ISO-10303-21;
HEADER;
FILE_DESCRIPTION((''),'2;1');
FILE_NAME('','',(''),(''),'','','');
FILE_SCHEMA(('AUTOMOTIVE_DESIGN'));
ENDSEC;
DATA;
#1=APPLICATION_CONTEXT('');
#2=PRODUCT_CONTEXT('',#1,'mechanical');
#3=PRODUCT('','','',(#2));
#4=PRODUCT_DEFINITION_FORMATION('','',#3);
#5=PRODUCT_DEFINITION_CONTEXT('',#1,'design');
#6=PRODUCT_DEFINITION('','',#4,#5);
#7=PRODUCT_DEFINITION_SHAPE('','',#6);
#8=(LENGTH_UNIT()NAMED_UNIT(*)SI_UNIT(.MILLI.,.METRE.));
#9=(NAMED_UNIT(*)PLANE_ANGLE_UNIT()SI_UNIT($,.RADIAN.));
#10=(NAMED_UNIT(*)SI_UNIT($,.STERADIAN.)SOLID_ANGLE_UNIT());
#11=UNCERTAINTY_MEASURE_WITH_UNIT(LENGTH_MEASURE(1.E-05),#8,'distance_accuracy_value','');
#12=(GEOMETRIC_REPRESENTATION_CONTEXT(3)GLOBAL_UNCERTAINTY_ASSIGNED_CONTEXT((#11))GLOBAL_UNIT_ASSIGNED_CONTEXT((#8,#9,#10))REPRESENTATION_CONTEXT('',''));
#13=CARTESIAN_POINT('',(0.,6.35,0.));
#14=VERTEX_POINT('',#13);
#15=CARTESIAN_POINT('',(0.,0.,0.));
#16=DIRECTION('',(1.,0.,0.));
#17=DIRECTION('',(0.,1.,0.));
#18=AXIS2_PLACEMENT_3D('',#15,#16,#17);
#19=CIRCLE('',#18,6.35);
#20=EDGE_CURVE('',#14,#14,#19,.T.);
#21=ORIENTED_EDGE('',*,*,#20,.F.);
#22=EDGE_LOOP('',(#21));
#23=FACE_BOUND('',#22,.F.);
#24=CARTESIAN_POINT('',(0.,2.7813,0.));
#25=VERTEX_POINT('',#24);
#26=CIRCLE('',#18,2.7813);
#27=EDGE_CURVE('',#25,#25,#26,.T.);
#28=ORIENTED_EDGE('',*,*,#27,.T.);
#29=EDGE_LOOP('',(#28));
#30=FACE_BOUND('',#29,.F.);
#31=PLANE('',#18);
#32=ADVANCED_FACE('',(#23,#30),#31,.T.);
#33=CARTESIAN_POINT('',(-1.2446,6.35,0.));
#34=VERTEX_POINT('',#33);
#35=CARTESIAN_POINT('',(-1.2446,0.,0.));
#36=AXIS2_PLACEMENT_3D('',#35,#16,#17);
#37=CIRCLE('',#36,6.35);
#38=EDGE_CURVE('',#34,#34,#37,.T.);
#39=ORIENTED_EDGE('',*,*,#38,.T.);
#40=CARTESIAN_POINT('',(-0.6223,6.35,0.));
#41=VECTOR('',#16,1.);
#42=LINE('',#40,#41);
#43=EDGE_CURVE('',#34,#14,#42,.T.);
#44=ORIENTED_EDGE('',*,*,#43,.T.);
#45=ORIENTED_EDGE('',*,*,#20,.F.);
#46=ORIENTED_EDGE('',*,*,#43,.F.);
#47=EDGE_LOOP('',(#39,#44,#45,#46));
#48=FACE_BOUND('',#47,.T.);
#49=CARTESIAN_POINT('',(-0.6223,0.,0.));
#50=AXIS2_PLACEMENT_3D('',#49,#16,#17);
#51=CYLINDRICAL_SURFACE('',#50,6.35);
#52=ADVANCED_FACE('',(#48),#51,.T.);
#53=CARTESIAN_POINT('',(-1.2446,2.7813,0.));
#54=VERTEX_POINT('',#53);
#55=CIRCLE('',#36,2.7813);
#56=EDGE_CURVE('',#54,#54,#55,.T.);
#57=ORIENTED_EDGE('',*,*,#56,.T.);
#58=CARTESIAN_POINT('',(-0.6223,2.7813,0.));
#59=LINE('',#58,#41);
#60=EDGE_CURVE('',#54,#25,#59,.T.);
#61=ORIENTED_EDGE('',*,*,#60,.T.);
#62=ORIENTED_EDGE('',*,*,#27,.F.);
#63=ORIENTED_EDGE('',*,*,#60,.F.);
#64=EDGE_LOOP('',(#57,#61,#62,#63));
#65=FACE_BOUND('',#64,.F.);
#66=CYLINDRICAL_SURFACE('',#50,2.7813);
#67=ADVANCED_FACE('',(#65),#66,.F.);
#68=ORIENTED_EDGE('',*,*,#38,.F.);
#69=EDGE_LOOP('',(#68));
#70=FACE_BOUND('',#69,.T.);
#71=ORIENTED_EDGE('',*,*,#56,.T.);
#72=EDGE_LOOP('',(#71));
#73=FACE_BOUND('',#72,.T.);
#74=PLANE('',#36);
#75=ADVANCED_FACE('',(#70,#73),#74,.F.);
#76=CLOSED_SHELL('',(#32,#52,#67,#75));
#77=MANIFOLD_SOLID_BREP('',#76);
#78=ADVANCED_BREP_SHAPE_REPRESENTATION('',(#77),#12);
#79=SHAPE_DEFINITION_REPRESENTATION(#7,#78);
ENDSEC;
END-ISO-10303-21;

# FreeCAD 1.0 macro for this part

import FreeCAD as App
import Part
import Sketcher
from FreeCAD import Vector
Q = App.Units.Quantity

doc = App.newDocument("Part")
body = doc.addObject("PartDesign::Body", "Body")

sketch1 = body.newObject("Sketcher::SketchObject", "Sketch")
sketch1.AttachmentSupport = (doc.getObject("XY_Plane"), [""])
sketch1.MapMode = "FlatFace"
sketch1.addGeometry([
    Part.LineSegment(Vector(-1.2, 6.3, 0), Vector(-1.2, 2.8, 0)),
    Part.LineSegment(Vector(-1.2, 2.8, 0), Vector(0, 2.8, 0)),
    Part.LineSegment(Vector(0, 2.8, 0), Vector(0, 6.3, 0)),
    Part.LineSegment(Vector(0, 6.3, 0), Vector(-1.2, 6.3, 0)),
], False)
sketch1.addConstraint([
    Sketcher.Constraint("Coincident", 0, 2, 1, 1),
    Sketcher.Constraint("Coincident", 1, 2, 2, 1),
    Sketcher.Constraint("Coincident", 2, 2, 3, 1),
    Sketcher.Constraint("Coincident", 3, 2, 0, 1),
    Sketcher.Constraint("Vertical", 0),
    Sketcher.Constraint("Horizontal", 1),
    Sketcher.Constraint("Vertical", 2),
    Sketcher.Constraint("Horizontal", 3),
    Sketcher.Constraint("PointOnObject", 1, 2, -2),
    Sketcher.Constraint("DistanceX", 1, 1, 1, 2, Q("0.049 in")),
    Sketcher.Constraint("DistanceY", -1, 1, 2, 2, Q("0.25 in")),
    Sketcher.Constraint("DistanceY", 0, 2, 0, 1, Q("0.1405 in")),
])
revolution = body.newObject("PartDesign::Revolution", "Revolution")
revolution.Profile = sketch1
revolution.ReferenceAxis = (sketch1, ["H_Axis"])
revolution.Angle = 360

doc.recompute()
